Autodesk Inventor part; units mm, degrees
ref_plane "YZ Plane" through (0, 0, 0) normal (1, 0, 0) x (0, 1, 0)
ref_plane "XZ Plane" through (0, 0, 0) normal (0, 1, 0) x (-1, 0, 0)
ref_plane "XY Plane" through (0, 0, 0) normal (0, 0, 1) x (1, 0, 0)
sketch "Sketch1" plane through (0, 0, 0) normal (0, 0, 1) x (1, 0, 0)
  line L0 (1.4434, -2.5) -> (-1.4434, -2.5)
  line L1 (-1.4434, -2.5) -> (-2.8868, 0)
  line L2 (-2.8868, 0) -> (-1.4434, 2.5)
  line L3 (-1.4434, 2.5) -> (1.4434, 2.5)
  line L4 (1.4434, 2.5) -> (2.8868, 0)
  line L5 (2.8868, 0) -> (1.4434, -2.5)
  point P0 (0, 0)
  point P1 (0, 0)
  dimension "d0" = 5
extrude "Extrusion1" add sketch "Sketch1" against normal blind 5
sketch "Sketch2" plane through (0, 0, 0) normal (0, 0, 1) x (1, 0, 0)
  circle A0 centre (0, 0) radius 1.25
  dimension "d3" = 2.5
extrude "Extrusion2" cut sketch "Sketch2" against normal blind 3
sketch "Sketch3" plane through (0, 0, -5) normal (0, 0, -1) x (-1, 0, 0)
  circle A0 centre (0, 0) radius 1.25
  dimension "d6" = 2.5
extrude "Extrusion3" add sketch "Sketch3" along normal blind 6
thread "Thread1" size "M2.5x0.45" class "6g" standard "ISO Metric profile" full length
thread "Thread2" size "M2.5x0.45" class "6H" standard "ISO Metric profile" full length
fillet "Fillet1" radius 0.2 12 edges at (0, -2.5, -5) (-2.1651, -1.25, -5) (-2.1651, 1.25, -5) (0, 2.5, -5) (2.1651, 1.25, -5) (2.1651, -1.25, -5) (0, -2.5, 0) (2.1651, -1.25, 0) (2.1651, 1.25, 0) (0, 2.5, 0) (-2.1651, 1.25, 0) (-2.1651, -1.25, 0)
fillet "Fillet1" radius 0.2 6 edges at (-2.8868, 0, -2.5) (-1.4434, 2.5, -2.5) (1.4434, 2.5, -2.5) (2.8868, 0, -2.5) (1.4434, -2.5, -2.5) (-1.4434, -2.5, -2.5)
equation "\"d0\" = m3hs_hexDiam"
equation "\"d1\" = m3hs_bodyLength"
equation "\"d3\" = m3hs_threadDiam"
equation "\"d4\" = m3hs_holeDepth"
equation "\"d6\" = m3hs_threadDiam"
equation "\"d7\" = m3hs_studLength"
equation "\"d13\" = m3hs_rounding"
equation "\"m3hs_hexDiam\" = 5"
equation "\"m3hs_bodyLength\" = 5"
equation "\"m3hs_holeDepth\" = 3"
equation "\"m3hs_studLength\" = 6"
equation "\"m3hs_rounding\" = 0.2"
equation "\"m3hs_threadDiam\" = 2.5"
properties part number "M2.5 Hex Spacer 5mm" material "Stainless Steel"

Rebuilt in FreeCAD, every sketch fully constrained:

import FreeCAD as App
import Part
import Sketcher

V = App.Vector
Q = App.Units.Quantity


def edges_at(feature, points):
    """Names of the edges that pass closest to the given points."""
    edges = feature.Shape.Edges
    near = lambda p: min(range(len(edges)), key=lambda i: edges[i].distToShape(Part.Vertex(*p))[0])
    return sorted({f"Edge{near(p) + 1}" for p in points})

doc = App.newDocument("Part")
params = doc.addObject("Spreadsheet::Sheet", "Params")
for row, (alias, value) in enumerate([
    ("pad1_length", "5 mm"),
    ("sketch2_diameter", "2.5 mm"),
    ("pocket1_length", "3 mm"),
    ("sketch3_diameter", "2.5 mm"),
    ("pad2_length", "6 mm"),
    ("fillet_radius", "0.2 mm"),
    ("fillet2_radius", "0.2 mm"),
], start=1):
    params.set(f"A{row}", alias)
    params.set(f"B{row}", "=" + value)
    params.setAlias(f"B{row}", alias)

body = doc.addObject("PartDesign::Body", "Body")

sketch1 = doc.addObject("Sketcher::SketchObject", "Sketch")
body.addObject(sketch1)
sketch1.AttachmentSupport = (doc.XY_Plane, [""])
sketch1.MapMode = "FlatFace"
sketch1.addGeometry(Part.LineSegment(V(-1.4, -2.5, 0), V(1.4, -2.5, 0)), False)
sketch1.addGeometry(Part.LineSegment(V(1.4, -2.5, 0), V(2.9, 0, 0)), False)
sketch1.addGeometry(Part.LineSegment(V(2.9, 0, 0), V(1.4, 2.5, 0)), False)
sketch1.addGeometry(Part.LineSegment(V(1.4, 2.5, 0), V(-1.4, 2.5, 0)), False)
sketch1.addGeometry(Part.LineSegment(V(-1.4, 2.5, 0), V(-2.9, 0, 0)), False)
sketch1.addGeometry(Part.LineSegment(V(-2.9, 0, 0), V(-1.4, -2.5, 0)), False)
sketch1.addConstraint(Sketcher.Constraint("Coincident", 0, 2, 1, 1))
sketch1.addConstraint(Sketcher.Constraint("Coincident", 1, 2, 2, 1))
sketch1.addConstraint(Sketcher.Constraint("Coincident", 2, 2, 3, 1))
sketch1.addConstraint(Sketcher.Constraint("Coincident", 3, 2, 4, 1))
sketch1.addConstraint(Sketcher.Constraint("Coincident", 4, 2, 5, 1))
sketch1.addConstraint(Sketcher.Constraint("Coincident", 5, 2, 0, 1))
sketch1.addConstraint(Sketcher.Constraint("Horizontal", 0))
sketch1.addConstraint(Sketcher.Constraint("Horizontal", 3))
sketch1.addConstraint(Sketcher.Constraint("Symmetric", 0, 2, 3, 2, -1, 1))
sketch1.addConstraint(Sketcher.Constraint("Symmetric", 1, 2, 4, 2, -1, 1))
sketch1.addConstraint(Sketcher.Constraint("PointOnObject", 1, 2, -1))
sketch1.addConstraint(Sketcher.Constraint("Parallel", 2, 5))
sketch1.addConstraint(Sketcher.Constraint("Vertical", 0, 2, 2, 2))
sketch1.addConstraint(Sketcher.Constraint("DistanceY", 0, 2, 2, 2, Q("5 mm")))
sketch1.addConstraint(Sketcher.Constraint("Angle", 1, Q("59.9996 deg")))
sketch1.addConstraint(Sketcher.Constraint("DistanceX", 0, 1, 0, 2, Q("2.8868 mm")))
pad1 = doc.addObject("PartDesign::Pad", "Pad")
body.addObject(pad1)
pad1.Profile = sketch1
pad1.setExpression("Length", "Params.pad1_length")
pad1.Reversed = True

sketch2 = doc.addObject("Sketcher::SketchObject", "Sketch001")
body.addObject(sketch2)
sketch2.AttachmentSupport = (doc.XY_Plane, [""])
sketch2.MapMode = "FlatFace"
sketch2.addGeometry(Part.Circle(V(0, 0, 0), V(0, 0, 1), 1.2), False)
sketch2.addConstraint(Sketcher.Constraint("Coincident", 0, 3, -1, 1))
sketch2.addConstraint(Sketcher.Constraint("Diameter", 0, Q("2.5 mm")))
sketch2.setExpression("Constraints[1]", "Params.sketch2_diameter")
pocket1 = doc.addObject("PartDesign::Pocket", "Pocket")
body.addObject(pocket1)
pocket1.Profile = sketch2
pocket1.setExpression("Length", "Params.pocket1_length")

sketch3 = doc.addObject("Sketcher::SketchObject", "Sketch002")
body.addObject(sketch3)
sketch3.AttachmentSupport = (doc.XY_Plane, [""])
sketch3.MapMode = "FlatFace"
sketch3.AttachmentOffset = App.Placement(V(0, 0, -5), App.Rotation())
sketch3.addGeometry(Part.Circle(V(0, 0, 0), V(0, 0, 1), 1.2), False)
sketch3.addConstraint(Sketcher.Constraint("Coincident", 0, 3, -1, 1))
sketch3.addConstraint(Sketcher.Constraint("Diameter", 0, Q("2.5 mm")))
sketch3.setExpression("Constraints[1]", "Params.sketch3_diameter")
pad2 = doc.addObject("PartDesign::Pad", "Pad001")
body.addObject(pad2)
pad2.Profile = sketch3
pad2.setExpression("Length", "Params.pad2_length")
pad2.Reversed = True
doc.recompute()

fillet = doc.addObject("PartDesign::Fillet", "Fillet")
body.addObject(fillet)
fillet.Base = (pad2, edges_at(pad2, [
    (0, -2.5, -5),
    (-2.165, -1.25, -5),
    (-2.165, 1.25, -5),
    (0, 2.5, -5),
    (2.165, 1.25, -5),
    (2.165, -1.25, -5),
    (0, -2.5, 0),
    (2.165, -1.25, 0),
    (2.165, 1.25, 0),
    (0, 2.5, 0),
    (-2.165, 1.25, 0),
    (-2.165, -1.25, 0),
]))
fillet.setExpression("Radius", "Params.fillet_radius")
doc.recompute()

fillet2 = doc.addObject("PartDesign::Fillet", "Fillet001")
body.addObject(fillet2)
fillet2.Base = (fillet, edges_at(fillet, [
    (-2.887, 0, -2.5),
    (-1.443, 2.5, -2.5),
    (1.443, 2.5, -2.5),
    (2.887, 0, -2.5),
    (1.443, -2.5, -2.5),
    (-1.443, -2.5, -2.5),
]))
fillet2.setExpression("Radius", "Params.fillet2_radius")

doc.recompute()
